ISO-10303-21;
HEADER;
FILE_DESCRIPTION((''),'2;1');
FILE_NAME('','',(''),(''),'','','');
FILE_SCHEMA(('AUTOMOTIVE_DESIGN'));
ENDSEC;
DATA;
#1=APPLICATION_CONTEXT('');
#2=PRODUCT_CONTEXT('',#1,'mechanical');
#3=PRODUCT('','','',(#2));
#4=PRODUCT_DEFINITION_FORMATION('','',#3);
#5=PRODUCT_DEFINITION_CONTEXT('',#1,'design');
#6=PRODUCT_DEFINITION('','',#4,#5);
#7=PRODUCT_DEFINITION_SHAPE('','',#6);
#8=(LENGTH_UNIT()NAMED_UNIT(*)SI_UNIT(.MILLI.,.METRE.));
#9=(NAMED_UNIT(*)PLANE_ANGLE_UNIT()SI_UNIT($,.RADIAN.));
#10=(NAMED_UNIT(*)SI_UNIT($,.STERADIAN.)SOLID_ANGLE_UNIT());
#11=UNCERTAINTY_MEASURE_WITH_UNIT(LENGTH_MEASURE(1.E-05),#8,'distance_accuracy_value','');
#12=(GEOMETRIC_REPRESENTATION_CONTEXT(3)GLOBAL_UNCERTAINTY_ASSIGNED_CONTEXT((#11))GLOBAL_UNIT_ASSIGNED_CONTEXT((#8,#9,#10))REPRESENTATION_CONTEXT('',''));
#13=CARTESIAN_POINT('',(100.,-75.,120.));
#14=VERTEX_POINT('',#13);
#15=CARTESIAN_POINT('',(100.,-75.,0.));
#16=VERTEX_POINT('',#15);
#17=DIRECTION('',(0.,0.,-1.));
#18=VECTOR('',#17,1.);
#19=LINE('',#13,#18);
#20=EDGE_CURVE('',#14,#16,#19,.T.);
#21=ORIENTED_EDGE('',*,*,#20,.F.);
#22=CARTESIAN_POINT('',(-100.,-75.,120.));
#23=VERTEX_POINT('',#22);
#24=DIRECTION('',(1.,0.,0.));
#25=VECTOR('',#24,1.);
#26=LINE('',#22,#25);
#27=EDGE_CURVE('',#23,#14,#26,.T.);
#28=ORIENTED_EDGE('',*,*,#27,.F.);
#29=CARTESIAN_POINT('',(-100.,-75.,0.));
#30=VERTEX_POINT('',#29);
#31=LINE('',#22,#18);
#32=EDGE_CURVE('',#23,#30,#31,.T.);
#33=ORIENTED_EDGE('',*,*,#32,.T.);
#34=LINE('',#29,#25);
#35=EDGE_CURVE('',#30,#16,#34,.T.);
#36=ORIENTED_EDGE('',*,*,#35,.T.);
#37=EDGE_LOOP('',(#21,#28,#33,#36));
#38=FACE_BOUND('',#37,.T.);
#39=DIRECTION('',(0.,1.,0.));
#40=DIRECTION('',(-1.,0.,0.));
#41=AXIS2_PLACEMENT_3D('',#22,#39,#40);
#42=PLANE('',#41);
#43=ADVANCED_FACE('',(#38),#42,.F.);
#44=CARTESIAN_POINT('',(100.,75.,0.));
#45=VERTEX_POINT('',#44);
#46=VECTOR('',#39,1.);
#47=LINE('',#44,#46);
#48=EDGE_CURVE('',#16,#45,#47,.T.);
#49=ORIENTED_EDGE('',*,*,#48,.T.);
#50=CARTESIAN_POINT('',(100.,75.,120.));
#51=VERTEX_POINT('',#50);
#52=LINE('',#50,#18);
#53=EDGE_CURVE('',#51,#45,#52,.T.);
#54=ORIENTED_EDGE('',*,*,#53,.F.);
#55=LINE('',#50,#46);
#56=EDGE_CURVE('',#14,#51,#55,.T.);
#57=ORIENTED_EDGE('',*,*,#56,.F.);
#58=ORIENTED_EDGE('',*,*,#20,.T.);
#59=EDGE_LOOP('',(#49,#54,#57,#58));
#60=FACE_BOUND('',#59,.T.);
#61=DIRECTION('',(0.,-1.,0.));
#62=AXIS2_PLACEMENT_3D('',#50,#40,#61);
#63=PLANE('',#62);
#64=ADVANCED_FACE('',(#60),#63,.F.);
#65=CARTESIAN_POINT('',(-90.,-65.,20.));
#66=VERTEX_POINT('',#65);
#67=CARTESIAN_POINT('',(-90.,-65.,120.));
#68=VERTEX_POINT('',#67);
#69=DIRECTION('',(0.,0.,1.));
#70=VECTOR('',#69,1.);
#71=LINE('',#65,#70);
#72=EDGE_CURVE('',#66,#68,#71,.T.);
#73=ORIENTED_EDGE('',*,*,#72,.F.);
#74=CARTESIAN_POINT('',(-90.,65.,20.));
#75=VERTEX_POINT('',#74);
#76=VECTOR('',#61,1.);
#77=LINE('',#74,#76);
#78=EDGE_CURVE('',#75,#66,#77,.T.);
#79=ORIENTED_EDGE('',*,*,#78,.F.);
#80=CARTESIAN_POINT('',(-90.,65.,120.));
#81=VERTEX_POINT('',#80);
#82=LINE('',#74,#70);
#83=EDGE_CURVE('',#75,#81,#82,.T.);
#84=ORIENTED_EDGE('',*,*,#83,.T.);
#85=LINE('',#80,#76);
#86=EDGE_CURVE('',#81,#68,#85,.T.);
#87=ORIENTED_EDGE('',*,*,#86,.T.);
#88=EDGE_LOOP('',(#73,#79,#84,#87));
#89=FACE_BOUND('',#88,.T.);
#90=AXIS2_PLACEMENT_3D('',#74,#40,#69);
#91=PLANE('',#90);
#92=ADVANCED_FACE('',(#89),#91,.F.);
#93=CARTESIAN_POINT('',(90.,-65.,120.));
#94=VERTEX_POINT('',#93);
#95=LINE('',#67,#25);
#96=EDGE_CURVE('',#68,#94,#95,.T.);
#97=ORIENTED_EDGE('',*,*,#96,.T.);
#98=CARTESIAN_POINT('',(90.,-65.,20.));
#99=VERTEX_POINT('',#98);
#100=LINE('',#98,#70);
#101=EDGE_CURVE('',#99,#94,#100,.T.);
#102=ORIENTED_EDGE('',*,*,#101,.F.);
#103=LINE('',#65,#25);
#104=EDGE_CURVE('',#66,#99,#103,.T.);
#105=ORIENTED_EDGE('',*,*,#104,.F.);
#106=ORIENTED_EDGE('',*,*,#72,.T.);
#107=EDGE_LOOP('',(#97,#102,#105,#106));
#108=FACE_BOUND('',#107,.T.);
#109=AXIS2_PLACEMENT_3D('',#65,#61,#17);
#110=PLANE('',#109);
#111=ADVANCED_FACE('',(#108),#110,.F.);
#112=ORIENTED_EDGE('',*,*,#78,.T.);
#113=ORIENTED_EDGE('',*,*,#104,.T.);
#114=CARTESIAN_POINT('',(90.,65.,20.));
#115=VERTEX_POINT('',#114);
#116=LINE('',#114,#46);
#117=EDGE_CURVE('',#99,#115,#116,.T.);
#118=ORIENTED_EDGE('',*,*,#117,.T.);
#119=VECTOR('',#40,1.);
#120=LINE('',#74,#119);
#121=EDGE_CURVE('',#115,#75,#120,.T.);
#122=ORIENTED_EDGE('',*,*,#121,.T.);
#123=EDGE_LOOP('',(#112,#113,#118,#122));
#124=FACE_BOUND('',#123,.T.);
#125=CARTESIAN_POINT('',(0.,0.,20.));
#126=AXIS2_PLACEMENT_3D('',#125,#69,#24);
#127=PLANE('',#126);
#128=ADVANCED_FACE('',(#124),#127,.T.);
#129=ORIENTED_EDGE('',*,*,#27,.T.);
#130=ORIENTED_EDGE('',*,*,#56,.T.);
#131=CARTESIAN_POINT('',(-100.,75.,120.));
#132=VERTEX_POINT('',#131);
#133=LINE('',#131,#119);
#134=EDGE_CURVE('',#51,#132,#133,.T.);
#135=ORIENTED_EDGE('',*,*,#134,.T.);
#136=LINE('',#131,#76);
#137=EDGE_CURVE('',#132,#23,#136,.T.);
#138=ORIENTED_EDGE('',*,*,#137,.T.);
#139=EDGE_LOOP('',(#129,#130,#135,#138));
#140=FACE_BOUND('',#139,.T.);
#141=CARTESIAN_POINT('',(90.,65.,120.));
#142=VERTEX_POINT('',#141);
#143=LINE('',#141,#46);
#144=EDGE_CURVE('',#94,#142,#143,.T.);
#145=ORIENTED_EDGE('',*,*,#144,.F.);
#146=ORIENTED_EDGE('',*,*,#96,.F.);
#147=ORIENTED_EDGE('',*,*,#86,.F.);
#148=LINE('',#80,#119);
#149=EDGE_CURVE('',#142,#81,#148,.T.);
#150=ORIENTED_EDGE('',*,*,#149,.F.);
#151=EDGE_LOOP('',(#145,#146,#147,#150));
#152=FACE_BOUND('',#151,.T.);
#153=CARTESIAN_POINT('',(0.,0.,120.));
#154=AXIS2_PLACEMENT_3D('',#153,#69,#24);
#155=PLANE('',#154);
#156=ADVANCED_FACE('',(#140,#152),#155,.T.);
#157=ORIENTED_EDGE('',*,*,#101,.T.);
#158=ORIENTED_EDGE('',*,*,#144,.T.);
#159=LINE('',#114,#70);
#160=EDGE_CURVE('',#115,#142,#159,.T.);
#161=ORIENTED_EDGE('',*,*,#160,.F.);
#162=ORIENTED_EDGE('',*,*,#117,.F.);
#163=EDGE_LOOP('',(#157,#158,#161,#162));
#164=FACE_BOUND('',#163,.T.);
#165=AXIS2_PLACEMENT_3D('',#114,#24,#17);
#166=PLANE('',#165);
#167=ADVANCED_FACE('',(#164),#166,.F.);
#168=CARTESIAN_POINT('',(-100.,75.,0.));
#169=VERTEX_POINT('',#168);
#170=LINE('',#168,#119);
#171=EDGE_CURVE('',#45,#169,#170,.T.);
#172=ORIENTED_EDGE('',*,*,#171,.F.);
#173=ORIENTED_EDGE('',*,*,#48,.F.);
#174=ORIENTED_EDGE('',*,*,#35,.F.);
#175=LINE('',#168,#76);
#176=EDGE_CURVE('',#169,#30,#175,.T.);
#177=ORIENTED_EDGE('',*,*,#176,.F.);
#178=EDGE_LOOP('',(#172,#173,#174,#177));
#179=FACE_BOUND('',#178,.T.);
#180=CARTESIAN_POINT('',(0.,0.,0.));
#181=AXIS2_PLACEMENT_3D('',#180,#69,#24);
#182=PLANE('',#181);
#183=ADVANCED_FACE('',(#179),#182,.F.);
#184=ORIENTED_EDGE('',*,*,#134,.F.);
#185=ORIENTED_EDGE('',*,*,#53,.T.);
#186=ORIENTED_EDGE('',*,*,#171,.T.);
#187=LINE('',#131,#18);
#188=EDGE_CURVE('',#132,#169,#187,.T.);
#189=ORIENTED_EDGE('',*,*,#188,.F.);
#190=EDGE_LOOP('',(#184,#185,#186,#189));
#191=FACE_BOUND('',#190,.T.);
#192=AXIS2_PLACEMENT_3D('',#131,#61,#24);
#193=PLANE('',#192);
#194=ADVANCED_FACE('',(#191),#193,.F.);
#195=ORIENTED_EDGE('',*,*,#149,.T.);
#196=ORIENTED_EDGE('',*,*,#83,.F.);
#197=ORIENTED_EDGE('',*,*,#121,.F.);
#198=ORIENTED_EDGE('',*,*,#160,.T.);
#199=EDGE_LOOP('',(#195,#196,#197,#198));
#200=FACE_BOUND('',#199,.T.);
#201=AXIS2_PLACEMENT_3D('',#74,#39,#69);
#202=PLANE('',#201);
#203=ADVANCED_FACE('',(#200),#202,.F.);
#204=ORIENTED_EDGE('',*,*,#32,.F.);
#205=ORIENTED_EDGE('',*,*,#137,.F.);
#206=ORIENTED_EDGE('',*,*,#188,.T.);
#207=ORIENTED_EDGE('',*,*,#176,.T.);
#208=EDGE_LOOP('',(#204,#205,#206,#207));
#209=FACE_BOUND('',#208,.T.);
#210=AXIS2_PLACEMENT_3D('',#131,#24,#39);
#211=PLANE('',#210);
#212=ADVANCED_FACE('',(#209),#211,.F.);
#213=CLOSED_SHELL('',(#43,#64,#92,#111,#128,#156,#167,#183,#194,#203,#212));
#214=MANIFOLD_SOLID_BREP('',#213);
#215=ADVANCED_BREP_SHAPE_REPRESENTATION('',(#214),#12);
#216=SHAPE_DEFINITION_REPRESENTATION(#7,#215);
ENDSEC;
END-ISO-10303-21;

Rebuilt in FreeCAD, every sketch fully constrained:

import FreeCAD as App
import Part
import Sketcher

V = App.Vector
Q = App.Units.Quantity

doc = App.newDocument("Part")
body = doc.addObject("PartDesign::Body", "Body")

sketch1 = body.newObject("Sketcher::SketchObject", "Sketch")
sketch1.AttachmentSupport = (doc.getObject("XY_Plane"), [""])
sketch1.MapMode = "FlatFace"
sketch1.addGeometry([
    Part.LineSegment(V(-100, 75, 0), V(-100, -75, 0)),
    Part.LineSegment(V(-100, -75, 0), V(100, -75, 0)),
    Part.LineSegment(V(100, -75, 0), V(100, 75, 0)),
    Part.LineSegment(V(100, 75, 0), V(-100, 75, 0)),
], False)
sketch1.addConstraint([
    Sketcher.Constraint("Coincident", 0, 2, 1, 1),
    Sketcher.Constraint("Coincident", 1, 2, 2, 1),
    Sketcher.Constraint("Coincident", 2, 2, 3, 1),
    Sketcher.Constraint("Coincident", 3, 2, 0, 1),
    Sketcher.Constraint("Vertical", 0),
    Sketcher.Constraint("Horizontal", 1),
    Sketcher.Constraint("Vertical", 2),
    Sketcher.Constraint("Horizontal", 3),
    Sketcher.Constraint("Symmetric", 0, 2, 2, 2, -1, 1),
    Sketcher.Constraint("DistanceX", 1, 1, 1, 2, Q("200 mm")),
    Sketcher.Constraint("DistanceY", 0, 2, 0, 1, Q("150 mm")),
])
pad1 = body.newObject("PartDesign::Pad", "Pad")
pad1.Profile = sketch1
pad1.Length = 120

sketch2 = body.newObject("Sketcher::SketchObject", "Sketch001")
sketch2.AttachmentSupport = (doc.getObject("XY_Plane"), [""])
sketch2.MapMode = "FlatFace"
sketch2.AttachmentOffset = App.Placement(V(0, 0, 120), App.Rotation())
sketch2.addGeometry([
    Part.LineSegment(V(-90, 65, 0), V(-90, -65, 0)),
    Part.LineSegment(V(-90, -65, 0), V(90, -65, 0)),
    Part.LineSegment(V(90, -65, 0), V(90, 65, 0)),
    Part.LineSegment(V(90, 65, 0), V(-90, 65, 0)),
], False)
sketch2.addConstraint([
    Sketcher.Constraint("Coincident", 0, 2, 1, 1),
    Sketcher.Constraint("Coincident", 1, 2, 2, 1),
    Sketcher.Constraint("Coincident", 2, 2, 3, 1),
    Sketcher.Constraint("Coincident", 3, 2, 0, 1),
    Sketcher.Constraint("Vertical", 0),
    Sketcher.Constraint("Horizontal", 1),
    Sketcher.Constraint("Vertical", 2),
    Sketcher.Constraint("Horizontal", 3),
    Sketcher.Constraint("Symmetric", 0, 2, 2, 2, -1, 1),
    Sketcher.Constraint("DistanceX", 1, 1, 1, 2, Q("180 mm")),
    Sketcher.Constraint("DistanceY", 0, 2, 0, 1, Q("130 mm")),
])
pocket1 = body.newObject("PartDesign::Pocket", "Pocket")
pocket1.Profile = sketch2
pocket1.Length = 100

doc.recompute()
